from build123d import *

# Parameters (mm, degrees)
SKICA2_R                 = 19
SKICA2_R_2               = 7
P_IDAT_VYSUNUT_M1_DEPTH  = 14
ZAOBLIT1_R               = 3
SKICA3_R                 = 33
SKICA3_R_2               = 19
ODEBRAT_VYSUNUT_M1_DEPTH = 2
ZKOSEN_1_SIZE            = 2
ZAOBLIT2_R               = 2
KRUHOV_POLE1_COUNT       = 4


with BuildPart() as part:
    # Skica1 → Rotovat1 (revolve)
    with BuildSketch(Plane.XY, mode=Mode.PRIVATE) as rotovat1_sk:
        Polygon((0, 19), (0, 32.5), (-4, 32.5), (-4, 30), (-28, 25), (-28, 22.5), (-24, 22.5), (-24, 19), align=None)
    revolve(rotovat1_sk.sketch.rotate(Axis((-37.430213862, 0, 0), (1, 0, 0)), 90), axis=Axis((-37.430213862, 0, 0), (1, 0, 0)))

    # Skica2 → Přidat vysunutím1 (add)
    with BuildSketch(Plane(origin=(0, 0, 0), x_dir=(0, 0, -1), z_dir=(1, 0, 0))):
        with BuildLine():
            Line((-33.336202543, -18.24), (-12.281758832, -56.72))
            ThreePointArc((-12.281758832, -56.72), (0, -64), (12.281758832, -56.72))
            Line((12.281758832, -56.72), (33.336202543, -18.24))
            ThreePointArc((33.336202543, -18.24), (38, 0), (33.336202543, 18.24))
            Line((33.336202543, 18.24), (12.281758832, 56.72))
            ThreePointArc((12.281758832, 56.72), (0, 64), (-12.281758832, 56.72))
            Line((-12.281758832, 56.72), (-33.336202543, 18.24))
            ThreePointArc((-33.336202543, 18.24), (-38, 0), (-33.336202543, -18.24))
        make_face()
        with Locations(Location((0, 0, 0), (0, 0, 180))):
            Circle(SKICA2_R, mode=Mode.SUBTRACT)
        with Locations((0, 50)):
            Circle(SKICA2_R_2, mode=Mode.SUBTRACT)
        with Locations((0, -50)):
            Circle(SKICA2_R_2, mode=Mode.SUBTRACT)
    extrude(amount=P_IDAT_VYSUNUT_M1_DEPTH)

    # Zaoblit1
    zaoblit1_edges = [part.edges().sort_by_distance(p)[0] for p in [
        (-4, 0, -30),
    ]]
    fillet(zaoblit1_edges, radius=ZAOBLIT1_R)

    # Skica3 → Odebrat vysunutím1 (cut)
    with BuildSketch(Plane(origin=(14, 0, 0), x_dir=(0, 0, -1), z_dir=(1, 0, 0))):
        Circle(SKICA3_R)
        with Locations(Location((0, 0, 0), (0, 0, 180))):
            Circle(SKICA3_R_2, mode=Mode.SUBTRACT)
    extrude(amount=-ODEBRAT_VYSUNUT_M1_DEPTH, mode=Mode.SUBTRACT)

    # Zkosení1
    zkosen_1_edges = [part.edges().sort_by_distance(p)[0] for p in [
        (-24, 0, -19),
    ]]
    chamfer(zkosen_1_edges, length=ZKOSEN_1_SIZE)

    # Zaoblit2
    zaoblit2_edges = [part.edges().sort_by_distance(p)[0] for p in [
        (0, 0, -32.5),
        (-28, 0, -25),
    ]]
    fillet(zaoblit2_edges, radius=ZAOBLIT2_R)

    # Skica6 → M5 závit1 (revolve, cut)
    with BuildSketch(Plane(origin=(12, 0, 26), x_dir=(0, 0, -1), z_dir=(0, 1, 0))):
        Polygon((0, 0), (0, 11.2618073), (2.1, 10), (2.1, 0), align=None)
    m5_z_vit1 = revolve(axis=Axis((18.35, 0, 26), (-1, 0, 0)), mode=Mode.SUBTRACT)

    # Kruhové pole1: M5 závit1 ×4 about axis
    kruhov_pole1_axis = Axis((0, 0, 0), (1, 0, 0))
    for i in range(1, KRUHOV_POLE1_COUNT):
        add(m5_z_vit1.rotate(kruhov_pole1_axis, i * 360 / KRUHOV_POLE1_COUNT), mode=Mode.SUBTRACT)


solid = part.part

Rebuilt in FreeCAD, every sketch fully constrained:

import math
import FreeCAD as App
import Part
import Sketcher

V = App.Vector
Q = App.Units.Quantity


def edges_at(feature, points):
    """Names of the edges that pass closest to the given points."""
    edges = feature.Shape.Edges
    near = lambda p: min(range(len(edges)), key=lambda i: edges[i].distToShape(Part.Vertex(*p))[0])
    return sorted({f"Edge{near(p) + 1}" for p in points})

doc = App.newDocument("Part")
body = doc.addObject("PartDesign::Body", "Body")

sketch1 = body.newObject("Sketcher::SketchObject", "Sketch")
sketch1.AttachmentSupport = (doc.getObject("XY_Plane"), [""])
sketch1.MapMode = "FlatFace"
sketch1.addGeometry([
    Part.LineSegment(V(0, 19, 0), V(0, 32.5, 0)),
    Part.LineSegment(V(0, 32.5, 0), V(-4, 32.5, 0)),
    Part.LineSegment(V(-4, 32.5, 0), V(-4, 30, 0)),
    Part.LineSegment(V(-4, 30, 0), V(-28, 25, 0)),
    Part.LineSegment(V(-28, 25, 0), V(-28, 22.5, 0)),
    Part.LineSegment(V(-28, 22.5, 0), V(-24, 22.5, 0)),
    Part.LineSegment(V(-24, 22.5, 0), V(-24, 19, 0)),
    Part.LineSegment(V(-24, 19, 0), V(0, 19, 0)),
], False)
sketch1.addConstraint([
    Sketcher.Constraint("Coincident", 0, 2, 1, 1),
    Sketcher.Constraint("Coincident", 1, 2, 2, 1),
    Sketcher.Constraint("Coincident", 2, 2, 3, 1),
    Sketcher.Constraint("Coincident", 3, 2, 4, 1),
    Sketcher.Constraint("Coincident", 4, 2, 5, 1),
    Sketcher.Constraint("Coincident", 5, 2, 6, 1),
    Sketcher.Constraint("Coincident", 6, 2, 7, 1),
    Sketcher.Constraint("Coincident", 7, 2, 0, 1),
    Sketcher.Constraint("Vertical", 0),
    Sketcher.Constraint("Horizontal", 1),
    Sketcher.Constraint("Vertical", 2),
    Sketcher.Constraint("Vertical", 4),
    Sketcher.Constraint("Horizontal", 5),
    Sketcher.Constraint("Vertical", 6),
    Sketcher.Constraint("Horizontal", 7),
    Sketcher.Constraint("PointOnObject", 0, 2, -2),
    Sketcher.Constraint("Equal", 1, 5),
    Sketcher.Constraint("Equal", 2, 4),
    Sketcher.Constraint("DistanceX", 1, 2, 1, 1, Q("4 mm")),
    Sketcher.Constraint("DistanceX", 7, 1, 7, 2, Q("24 mm")),
    Sketcher.Constraint("DistanceY", 0, 1, 0, 2, Q("13.5 mm")),
    Sketcher.Constraint("DistanceY", 2, 2, 2, 1, Q("2.5 mm")),
    Sketcher.Constraint("DistanceY", 6, 2, 6, 1, Q("3.5 mm")),
    Sketcher.Constraint("DistanceY", -1, 1, 2, 2, Q("30 mm")),
])
revolution = body.newObject("PartDesign::Revolution", "Revolution")
revolution.Profile = sketch1
revolution.ReferenceAxis = (sketch1, ["H_Axis"])
revolution.Angle = 360

sketch2 = body.newObject("Sketcher::SketchObject", "Sketch001")
sketch2.AttachmentSupport = (doc.getObject("YZ_Plane"), [""])
sketch2.MapMode = "FlatFace"
sketch2.addGeometry([
    Part.LineSegment(V(-18, 33, 0), V(-57, 12, 0)),
    Part.ArcOfCircle(Part.Circle(V(-50, 0, 0), V(0, 0, 1), 14), math.radians(119), math.radians(241)),
    Part.LineSegment(V(-57, -12, 0), V(-18, -33, 0)),
    Part.ArcOfCircle(Part.Circle(V(0, 0, 0), V(0, 0, 1), 38), math.radians(-119), math.radians(-61)),
    Part.LineSegment(V(18, -33, 0), V(57, -12, 0)),
    Part.ArcOfCircle(Part.Circle(V(50, 0, 0), V(0, 0, 1), 14), math.radians(-61), math.radians(61)),
    Part.LineSegment(V(57, 12, 0), V(18, 33, 0)),
    Part.ArcOfCircle(Part.Circle(V(0, 0, 0), V(0, 0, 1), 38), math.radians(61), math.radians(119)),
    Part.Circle(V(-50, 0, 0), V(0, 0, 1), 7),
    Part.Circle(V(0, 0, 0), V(0, 0, 1), 19),
    Part.Circle(V(50, 0, 0), V(0, 0, 1), 7),
], False)
sketch2.addConstraint([
    Sketcher.Constraint("Tangent", 0, 2, 1, 1),
    Sketcher.Constraint("Tangent", 1, 2, 2, 1),
    Sketcher.Constraint("Tangent", 2, 2, 3, 1),
    Sketcher.Constraint("Tangent", 3, 2, 4, 1),
    Sketcher.Constraint("Tangent", 4, 2, 5, 1),
    Sketcher.Constraint("Tangent", 5, 2, 6, 1),
    Sketcher.Constraint("Tangent", 6, 2, 7, 1),
    Sketcher.Constraint("Tangent", 7, 2, 0, 1),
    Sketcher.Constraint("Coincident", 3, 3, -1, 1),
    Sketcher.Constraint("Coincident", 7, 3, -1, 1),
    Sketcher.Constraint("Coincident", 9, 3, -1, 1),
    Sketcher.Constraint("Coincident", 8, 3, 1, 3),
    Sketcher.Constraint("Coincident", 10, 3, 5, 3),
    Sketcher.Constraint("Equal", 1, 5),
    Sketcher.Constraint("Equal", 3, 7),
    Sketcher.Constraint("Equal", 8, 10),
    Sketcher.Constraint("Symmetric", 1, 3, 5, 3, -1, 1),
    Sketcher.Constraint("PointOnObject", 1, 3, -1),
    Sketcher.Constraint("Diameter", 8, Q("14 mm")),
    Sketcher.Constraint("Diameter", 9, Q("38 mm")),
    Sketcher.Constraint("Radius", 1, Q("14 mm")),
    Sketcher.Constraint("Radius", 3, Q("38 mm")),
    Sketcher.Constraint("DistanceX", 1, 3, -1, 1, Q("50 mm")),
])
pad1 = body.newObject("PartDesign::Pad", "Pad")
pad1.Profile = sketch2
pad1.Length = 14
doc.recompute()

fillet = body.newObject("PartDesign::Fillet", "Fillet")
fillet.Base = (pad1, edges_at(pad1, [(-4, 0, -30)]))
fillet.Radius = 3

sketch3 = body.newObject("Sketcher::SketchObject", "Sketch002")
sketch3.AttachmentSupport = (doc.getObject("YZ_Plane"), [""])
sketch3.MapMode = "FlatFace"
sketch3.AttachmentOffset = App.Placement(V(0, 0, 14), App.Rotation())
sketch3.addGeometry([
    Part.Circle(V(0, 0, 0), V(0, 0, 1), 33),
    Part.Circle(V(0, 0, 0), V(0, 0, 1), 19),
], False)
sketch3.addConstraint([
    Sketcher.Constraint("Coincident", 0, 3, -1, 1),
    Sketcher.Constraint("Coincident", 1, 3, -1, 1),
    Sketcher.Constraint("Diameter", 0, Q("66 mm")),
    Sketcher.Constraint("Diameter", 1, Q("38 mm")),
])
pocket1 = body.newObject("PartDesign::Pocket", "Pocket")
pocket1.Profile = sketch3
pocket1.Length = 2
doc.recompute()

chamfer = body.newObject("PartDesign::Chamfer", "Chamfer")
chamfer.Base = (pocket1, edges_at(pocket1, [(-24, 0, -19)]))
chamfer.Size = 2
doc.recompute()

fillet2 = body.newObject("PartDesign::Fillet", "Fillet001")
fillet2.Base = (chamfer, edges_at(chamfer, [(0, 0, -32.5), (-28, 0, -25)]))
fillet2.Radius = 2

sketch4 = body.newObject("Sketcher::SketchObject", "Sketch003")
sketch4.AttachmentSupport = (doc.getObject("XZ_Plane"), [""])
sketch4.MapMode = "FlatFace"
sketch4.addGeometry([
    Part.LineSegment(V(0.7, 26, 0), V(12, 26, 0)),
    Part.LineSegment(V(12, 26, 0), V(12, 23.9, 0)),
    Part.LineSegment(V(12, 23.9, 0), V(2, 23.9, 0)),
    Part.LineSegment(V(2, 23.9, 0), V(0.7, 26, 0)),
], False)
sketch4.addGeometry(Part.LineSegment(V(12, 26, 0), V(0.7, 26, 0)), True)
sketch4.addConstraint([
    Sketcher.Constraint("Coincident", 0, 2, 1, 1),
    Sketcher.Constraint("Coincident", 1, 2, 2, 1),
    Sketcher.Constraint("Coincident", 2, 2, 3, 1),
    Sketcher.Constraint("Coincident", 3, 2, 0, 1),
    Sketcher.Constraint("Horizontal", 0),
    Sketcher.Constraint("Vertical", 1),
    Sketcher.Constraint("Horizontal", 2),
    Sketcher.Constraint("Horizontal", 4),
    Sketcher.Constraint("Coincident", 4, 1, 0, 2),
    Sketcher.Constraint("Equal", 0, 4),
    Sketcher.Constraint("DistanceX", 2, 2, 2, 1, Q("10 mm")),
    Sketcher.Constraint("Angle", 3, Q("121 deg")),
    Sketcher.Constraint("DistanceY", 1, 2, 1, 1, Q("2.1 mm")),
    Sketcher.Constraint("DistanceX", -1, 1, 0, 2, Q("12 mm")),
    Sketcher.Constraint("DistanceY", -1, 1, 0, 2, Q("26 mm")),
])
groove = body.newObject("PartDesign::Groove", "Groove")
groove.Profile = sketch4
groove.ReferenceAxis = (sketch4, ["Axis0"])
groove.Angle = 360
doc.recompute()

polarpattern = body.newObject("PartDesign::PolarPattern", "PolarPattern")
polarpattern.Originals = [groove]
polarpattern.Axis = (doc.getObject("X_Axis"), [""])
polarpattern.Angle = 360
polarpattern.Occurrences = 4
body.Tip = polarpattern

doc.recompute()
